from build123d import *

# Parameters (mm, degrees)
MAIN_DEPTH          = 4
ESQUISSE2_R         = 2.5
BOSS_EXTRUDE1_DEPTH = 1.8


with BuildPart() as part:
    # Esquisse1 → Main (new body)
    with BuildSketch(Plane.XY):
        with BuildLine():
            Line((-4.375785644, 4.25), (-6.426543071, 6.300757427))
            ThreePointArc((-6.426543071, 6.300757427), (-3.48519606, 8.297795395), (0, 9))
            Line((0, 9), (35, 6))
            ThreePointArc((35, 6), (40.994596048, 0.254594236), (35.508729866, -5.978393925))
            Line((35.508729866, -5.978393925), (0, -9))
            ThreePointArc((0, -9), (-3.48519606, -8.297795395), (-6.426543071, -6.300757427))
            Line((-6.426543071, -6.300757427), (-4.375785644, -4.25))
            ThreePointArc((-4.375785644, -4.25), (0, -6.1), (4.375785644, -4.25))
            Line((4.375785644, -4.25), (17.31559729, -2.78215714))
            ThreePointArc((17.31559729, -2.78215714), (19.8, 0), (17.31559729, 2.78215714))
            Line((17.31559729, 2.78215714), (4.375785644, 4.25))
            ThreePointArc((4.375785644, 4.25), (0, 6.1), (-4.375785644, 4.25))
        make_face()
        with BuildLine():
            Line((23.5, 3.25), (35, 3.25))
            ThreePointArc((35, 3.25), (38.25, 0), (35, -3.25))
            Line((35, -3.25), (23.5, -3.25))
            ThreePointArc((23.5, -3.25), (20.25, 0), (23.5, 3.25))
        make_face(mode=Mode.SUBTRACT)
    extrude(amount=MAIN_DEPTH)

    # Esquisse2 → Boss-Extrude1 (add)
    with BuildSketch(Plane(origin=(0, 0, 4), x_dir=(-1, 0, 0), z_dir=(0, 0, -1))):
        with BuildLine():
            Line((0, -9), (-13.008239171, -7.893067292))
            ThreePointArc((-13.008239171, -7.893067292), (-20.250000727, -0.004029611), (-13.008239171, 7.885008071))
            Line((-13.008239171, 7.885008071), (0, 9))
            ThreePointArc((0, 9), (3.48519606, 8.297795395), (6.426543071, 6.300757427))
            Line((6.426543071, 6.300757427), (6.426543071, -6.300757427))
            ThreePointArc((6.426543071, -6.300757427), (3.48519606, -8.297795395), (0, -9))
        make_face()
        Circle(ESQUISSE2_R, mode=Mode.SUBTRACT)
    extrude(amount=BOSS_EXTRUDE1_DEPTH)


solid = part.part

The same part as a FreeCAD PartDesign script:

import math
import FreeCAD as App
import Part
import Sketcher

V = App.Vector
Q = App.Units.Quantity

doc = App.newDocument("Part")
params = doc.addObject("Spreadsheet::Sheet", "Params")
for row, (alias, value) in enumerate([
    ("sketch1_radius", "9 mm"),
    ("sketch1_radius2", "6 mm"),
    ("sketch1_radius3", "6.1 mm"),
    ("sketch1_radius4", "2.8 mm"),
    ("sketch1_radius5", "3.25 mm"),
    ("pad1_length", "4 mm"),
    ("sketch2_diameter", "5 mm"),
    ("sketch2_radius", "9 mm"),
    ("pad2_length", "1.8 mm"),
], start=1):
    params.set(f"A{row}", alias)
    params.set(f"B{row}", "=" + value)
    params.setAlias(f"B{row}", alias)

body = doc.addObject("PartDesign::Body", "Body")

# Sketch on XY plane
sketch1 = doc.addObject("Sketcher::SketchObject", "Sketch")
body.addObject(sketch1)
sketch1.AttachmentSupport = (doc.XY_Plane, [""])
sketch1.MapMode = "FlatFace"
sketch1.addGeometry(Part.LineSegment(V(-6.4, 6.3, 0), V(-4.4, 4.2, 0)), False)
sketch1.addGeometry(Part.ArcOfCircle(Part.Circle(V(0, 0, 0), V(0, 0, 1), 6.1), math.radians(44), math.radians(136)), False)
sketch1.addGeometry(Part.LineSegment(V(4.4, 4.2, 0), V(17.3, 2.8, 0)), False)
sketch1.addGeometry(Part.ArcOfCircle(Part.Circle(V(17, 0, 0), V(0, 0, 1), 2.8), math.radians(-84), math.radians(84)), False)
sketch1.addGeometry(Part.LineSegment(V(17.3, -2.8, 0), V(4.4, -4.2, 0)), False)
sketch1.addGeometry(Part.ArcOfCircle(Part.Circle(V(0, 0, 0), V(0, 0, 1), 6.1), math.radians(-136), math.radians(-44)), False)
sketch1.addGeometry(Part.LineSegment(V(-4.4, -4.2, 0), V(-6.4, -6.3, 0)), False)
sketch1.addGeometry(Part.ArcOfCircle(Part.Circle(V(0, 0, 0), V(0, 0, 1), 9), math.radians(-136), math.radians(-90)), False)
sketch1.addGeometry(Part.LineSegment(V(0, -9, 0), V(35.5, -6, 0)), False)
sketch1.addGeometry(Part.ArcOfCircle(Part.Circle(V(35, 0, 0), V(0, 0, 1), 6), math.radians(-85), math.radians(90)), False)
sketch1.addGeometry(Part.LineSegment(V(35, 6, 0), V(0, 9, 0)), False)
sketch1.addGeometry(Part.ArcOfCircle(Part.Circle(V(0, 0, 0), V(0, 0, 1), 9), math.radians(90), math.radians(136)), False)
sketch1.addGeometry(Part.LineSegment(V(23.5, 3.2, 0), V(35, 3.2, 0)), False)
sketch1.addGeometry(Part.ArcOfCircle(Part.Circle(V(35, 0, 0), V(0, 0, 1), 3.2), math.radians(-90), math.radians(90)), False)
sketch1.addGeometry(Part.LineSegment(V(35, -3.2, 0), V(23.5, -3.2, 0)), False)
sketch1.addGeometry(Part.ArcOfCircle(Part.Circle(V(23.5, 0, 0), V(0, 0, 1), 3.2), math.radians(90), math.radians(270)), False)
sketch1.addConstraint(Sketcher.Constraint("Coincident", 0, 2, 1, 2))
sketch1.addConstraint(Sketcher.Constraint("Coincident", 1, 1, 2, 1))
sketch1.addConstraint(Sketcher.Constraint("Tangent", 2, 2, 3, 2))
sketch1.addConstraint(Sketcher.Constraint("Tangent", 3, 1, 4, 1))
sketch1.addConstraint(Sketcher.Constraint("Coincident", 4, 2, 5, 2))
sketch1.addConstraint(Sketcher.Constraint("Coincident", 5, 1, 6, 1))
sketch1.addConstraint(Sketcher.Constraint("Coincident", 6, 2, 7, 1))
sketch1.addConstraint(Sketcher.Constraint("Coincident", 7, 2, 8, 1))
sketch1.addConstraint(Sketcher.Constraint("Tangent", 8, 2, 9, 1))
sketch1.addConstraint(Sketcher.Constraint("Coincident", 9, 2, 10, 1))
sketch1.addConstraint(Sketcher.Constraint("Coincident", 10, 2, 11, 1))
sketch1.addConstraint(Sketcher.Constraint("Coincident", 11, 2, 0, 1))
sketch1.addConstraint(Sketcher.Constraint("Tangent", 12, 2, 13, 2))
sketch1.addConstraint(Sketcher.Constraint("Tangent", 13, 1, 14, 1))
sketch1.addConstraint(Sketcher.Constraint("Tangent", 14, 2, 15, 2))
sketch1.addConstraint(Sketcher.Constraint("Tangent", 15, 1, 12, 1))
sketch1.addConstraint(Sketcher.Constraint("Horizontal", 12))
sketch1.addConstraint(Sketcher.Constraint("Horizontal", 14))
sketch1.addConstraint(Sketcher.Constraint("Coincident", 1, 3, -1, 1))
sketch1.addConstraint(Sketcher.Constraint("Coincident", 5, 3, -1, 1))
sketch1.addConstraint(Sketcher.Constraint("Coincident", 7, 3, -1, 1))
sketch1.addConstraint(Sketcher.Constraint("Coincident", 11, 3, -1, 1))
sketch1.addConstraint(Sketcher.Constraint("Coincident", 13, 3, 9, 3))
sketch1.addConstraint(Sketcher.Constraint("Equal", 1, 5))
sketch1.addConstraint(Sketcher.Constraint("Equal", 7, 11))
sketch1.addConstraint(Sketcher.Constraint("Symmetric", 2, 2, 3, 1, -1))
sketch1.addConstraint(Sketcher.Constraint("PointOnObject", 9, 3, -1))
sketch1.addConstraint(Sketcher.Constraint("PointOnObject", 7, 2, -2))
sketch1.addConstraint(Sketcher.Constraint("PointOnObject", 10, 2, -2))
sketch1.addConstraint(Sketcher.Constraint("Perpendicular", 0, 6))
sketch1.addConstraint(Sketcher.Constraint("Horizontal", 0, 2, 1, 1))
sketch1.addConstraint(Sketcher.Constraint("Horizontal", 4, 2, 5, 1))
sketch1.addConstraint(Sketcher.Constraint("Vertical", 13, 3, 9, 2))
sketch1.addConstraint(Sketcher.Constraint("Vertical", 6, 2, 11, 2))
sketch1.addConstraint(Sketcher.Constraint("Radius", 7, Q("9 mm")))
sketch1.addConstraint(Sketcher.Constraint("Radius", 9, Q("6 mm")))
sketch1.addConstraint(Sketcher.Constraint("Radius", 1, Q("6.1 mm")))
sketch1.addConstraint(Sketcher.Constraint("Radius", 3, Q("2.8 mm")))
sketch1.addConstraint(Sketcher.Constraint("Radius", 13, Q("3.25 mm")))
sketch1.addConstraint(Sketcher.Constraint("DistanceX", 12, 1, 12, 2, Q("11.5 mm")))
sketch1.addConstraint(Sketcher.Constraint("DistanceX", -1, 1, 3, 3, Q("17 mm")))
sketch1.addConstraint(Sketcher.Constraint("DistanceX", -1, 1, 9, 3, Q("35 mm")))
sketch1.addConstraint(Sketcher.Constraint("DistanceY", 4, 2, 1, 1, Q("8.5 mm")))
sketch1.setExpression("Constraints[34]", "Params.sketch1_radius")
sketch1.setExpression("Constraints[35]", "Params.sketch1_radius2")
sketch1.setExpression("Constraints[36]", "Params.sketch1_radius3")
sketch1.setExpression("Constraints[37]", "Params.sketch1_radius4")
sketch1.setExpression("Constraints[38]", "Params.sketch1_radius5")
pad1 = doc.addObject("PartDesign::Pad", "Pad")
body.addObject(pad1)
pad1.Profile = sketch1
pad1.setExpression("Length", "Params.pad1_length")

# Sketch on XY plane
sketch2 = doc.addObject("Sketcher::SketchObject", "Sketch001")
body.addObject(sketch2)
sketch2.AttachmentSupport = (doc.XY_Plane, [""])
sketch2.MapMode = "FlatFace"
sketch2.AttachmentOffset = App.Placement(V(0, 0, 4), App.Rotation())
sketch2.addGeometry(Part.LineSegment(V(13, -7.9, 0), V(0, -9, 0)), False)
sketch2.addGeometry(Part.ArcOfCircle(Part.Circle(V(0, 0, 0), V(0, 0, 1), 9), math.radians(-136), math.radians(-90)), False)
sketch2.addGeometry(Part.LineSegment(V(-6.4, -6.3, 0), V(-6.4, 6.3, 0)), False)
sketch2.addGeometry(Part.ArcOfCircle(Part.Circle(V(0, 0, 0), V(0, 0, 1), 9), math.radians(90), math.radians(136)), False)
sketch2.addGeometry(Part.LineSegment(V(0, 9, 0), V(13, 7.9, 0)), False)
sketch2.addGeometry(Part.ArcOfCircle(Part.Circle(V(12.3, 0, 0), V(0, 0, 1), 7.9), math.radians(-85), math.radians(85)), False)
sketch2.addGeometry(Part.Circle(V(0, 0, 0), V(0, 0, 1), 2.5), False)
sketch2.addConstraint(Sketcher.Constraint("Coincident", 0, 2, 1, 2))
sketch2.addConstraint(Sketcher.Constraint("Coincident", 1, 1, 2, 1))
sketch2.addConstraint(Sketcher.Constraint("Coincident", 2, 2, 3, 2))
sketch2.addConstraint(Sketcher.Constraint("Coincident", 3, 1, 4, 1))
sketch2.addConstraint(Sketcher.Constraint("Tangent", 4, 2, 5, 2))
sketch2.addConstraint(Sketcher.Constraint("Coincident", 5, 1, 0, 1))
sketch2.addConstraint(Sketcher.Constraint("Vertical", 2))
sketch2.addConstraint(Sketcher.Constraint("Coincident", 1, 3, -1, 1))
sketch2.addConstraint(Sketcher.Constraint("Coincident", 3, 3, -1, 1))
sketch2.addConstraint(Sketcher.Constraint("Coincident", 6, 3, -1, 1))
sketch2.addConstraint(Sketcher.Constraint("Equal", 1, 3))
sketch2.addConstraint(Sketcher.Constraint("PointOnObject", 0, 2, -2))
sketch2.addConstraint(Sketcher.Constraint("PointOnObject", 3, 1, -2))
sketch2.addConstraint(Sketcher.Constraint("Vertical", 4, 2, 5, 1))
sketch2.addConstraint(Sketcher.Constraint("Diameter", 6, Q("5 mm")))
sketch2.addConstraint(Sketcher.Constraint("Radius", 1, Q("9 mm")))
sketch2.addConstraint(Sketcher.Constraint("Radius", 5, Q("7.917965 mm")))
sketch2.addConstraint(Sketcher.Constraint("Distance", 0, Q("13.055251 mm")))
sketch2.addConstraint(Sketcher.Constraint("DistanceY", 2, 1, 2, 2, Q("12.601515 mm")))
sketch2.addConstraint(Sketcher.Constraint("DistanceY", 5, 3, -1, 1, Q("0.00403 mm")))
sketch2.setExpression("Constraints[14]", "Params.sketch2_diameter")
sketch2.setExpression("Constraints[15]", "Params.sketch2_radius")
pad2 = doc.addObject("PartDesign::Pad", "Pad001")
body.addObject(pad2)
pad2.Profile = sketch2
pad2.setExpression("Length", "Params.pad2_length")
pad2.Reversed = True

doc.recompute()
